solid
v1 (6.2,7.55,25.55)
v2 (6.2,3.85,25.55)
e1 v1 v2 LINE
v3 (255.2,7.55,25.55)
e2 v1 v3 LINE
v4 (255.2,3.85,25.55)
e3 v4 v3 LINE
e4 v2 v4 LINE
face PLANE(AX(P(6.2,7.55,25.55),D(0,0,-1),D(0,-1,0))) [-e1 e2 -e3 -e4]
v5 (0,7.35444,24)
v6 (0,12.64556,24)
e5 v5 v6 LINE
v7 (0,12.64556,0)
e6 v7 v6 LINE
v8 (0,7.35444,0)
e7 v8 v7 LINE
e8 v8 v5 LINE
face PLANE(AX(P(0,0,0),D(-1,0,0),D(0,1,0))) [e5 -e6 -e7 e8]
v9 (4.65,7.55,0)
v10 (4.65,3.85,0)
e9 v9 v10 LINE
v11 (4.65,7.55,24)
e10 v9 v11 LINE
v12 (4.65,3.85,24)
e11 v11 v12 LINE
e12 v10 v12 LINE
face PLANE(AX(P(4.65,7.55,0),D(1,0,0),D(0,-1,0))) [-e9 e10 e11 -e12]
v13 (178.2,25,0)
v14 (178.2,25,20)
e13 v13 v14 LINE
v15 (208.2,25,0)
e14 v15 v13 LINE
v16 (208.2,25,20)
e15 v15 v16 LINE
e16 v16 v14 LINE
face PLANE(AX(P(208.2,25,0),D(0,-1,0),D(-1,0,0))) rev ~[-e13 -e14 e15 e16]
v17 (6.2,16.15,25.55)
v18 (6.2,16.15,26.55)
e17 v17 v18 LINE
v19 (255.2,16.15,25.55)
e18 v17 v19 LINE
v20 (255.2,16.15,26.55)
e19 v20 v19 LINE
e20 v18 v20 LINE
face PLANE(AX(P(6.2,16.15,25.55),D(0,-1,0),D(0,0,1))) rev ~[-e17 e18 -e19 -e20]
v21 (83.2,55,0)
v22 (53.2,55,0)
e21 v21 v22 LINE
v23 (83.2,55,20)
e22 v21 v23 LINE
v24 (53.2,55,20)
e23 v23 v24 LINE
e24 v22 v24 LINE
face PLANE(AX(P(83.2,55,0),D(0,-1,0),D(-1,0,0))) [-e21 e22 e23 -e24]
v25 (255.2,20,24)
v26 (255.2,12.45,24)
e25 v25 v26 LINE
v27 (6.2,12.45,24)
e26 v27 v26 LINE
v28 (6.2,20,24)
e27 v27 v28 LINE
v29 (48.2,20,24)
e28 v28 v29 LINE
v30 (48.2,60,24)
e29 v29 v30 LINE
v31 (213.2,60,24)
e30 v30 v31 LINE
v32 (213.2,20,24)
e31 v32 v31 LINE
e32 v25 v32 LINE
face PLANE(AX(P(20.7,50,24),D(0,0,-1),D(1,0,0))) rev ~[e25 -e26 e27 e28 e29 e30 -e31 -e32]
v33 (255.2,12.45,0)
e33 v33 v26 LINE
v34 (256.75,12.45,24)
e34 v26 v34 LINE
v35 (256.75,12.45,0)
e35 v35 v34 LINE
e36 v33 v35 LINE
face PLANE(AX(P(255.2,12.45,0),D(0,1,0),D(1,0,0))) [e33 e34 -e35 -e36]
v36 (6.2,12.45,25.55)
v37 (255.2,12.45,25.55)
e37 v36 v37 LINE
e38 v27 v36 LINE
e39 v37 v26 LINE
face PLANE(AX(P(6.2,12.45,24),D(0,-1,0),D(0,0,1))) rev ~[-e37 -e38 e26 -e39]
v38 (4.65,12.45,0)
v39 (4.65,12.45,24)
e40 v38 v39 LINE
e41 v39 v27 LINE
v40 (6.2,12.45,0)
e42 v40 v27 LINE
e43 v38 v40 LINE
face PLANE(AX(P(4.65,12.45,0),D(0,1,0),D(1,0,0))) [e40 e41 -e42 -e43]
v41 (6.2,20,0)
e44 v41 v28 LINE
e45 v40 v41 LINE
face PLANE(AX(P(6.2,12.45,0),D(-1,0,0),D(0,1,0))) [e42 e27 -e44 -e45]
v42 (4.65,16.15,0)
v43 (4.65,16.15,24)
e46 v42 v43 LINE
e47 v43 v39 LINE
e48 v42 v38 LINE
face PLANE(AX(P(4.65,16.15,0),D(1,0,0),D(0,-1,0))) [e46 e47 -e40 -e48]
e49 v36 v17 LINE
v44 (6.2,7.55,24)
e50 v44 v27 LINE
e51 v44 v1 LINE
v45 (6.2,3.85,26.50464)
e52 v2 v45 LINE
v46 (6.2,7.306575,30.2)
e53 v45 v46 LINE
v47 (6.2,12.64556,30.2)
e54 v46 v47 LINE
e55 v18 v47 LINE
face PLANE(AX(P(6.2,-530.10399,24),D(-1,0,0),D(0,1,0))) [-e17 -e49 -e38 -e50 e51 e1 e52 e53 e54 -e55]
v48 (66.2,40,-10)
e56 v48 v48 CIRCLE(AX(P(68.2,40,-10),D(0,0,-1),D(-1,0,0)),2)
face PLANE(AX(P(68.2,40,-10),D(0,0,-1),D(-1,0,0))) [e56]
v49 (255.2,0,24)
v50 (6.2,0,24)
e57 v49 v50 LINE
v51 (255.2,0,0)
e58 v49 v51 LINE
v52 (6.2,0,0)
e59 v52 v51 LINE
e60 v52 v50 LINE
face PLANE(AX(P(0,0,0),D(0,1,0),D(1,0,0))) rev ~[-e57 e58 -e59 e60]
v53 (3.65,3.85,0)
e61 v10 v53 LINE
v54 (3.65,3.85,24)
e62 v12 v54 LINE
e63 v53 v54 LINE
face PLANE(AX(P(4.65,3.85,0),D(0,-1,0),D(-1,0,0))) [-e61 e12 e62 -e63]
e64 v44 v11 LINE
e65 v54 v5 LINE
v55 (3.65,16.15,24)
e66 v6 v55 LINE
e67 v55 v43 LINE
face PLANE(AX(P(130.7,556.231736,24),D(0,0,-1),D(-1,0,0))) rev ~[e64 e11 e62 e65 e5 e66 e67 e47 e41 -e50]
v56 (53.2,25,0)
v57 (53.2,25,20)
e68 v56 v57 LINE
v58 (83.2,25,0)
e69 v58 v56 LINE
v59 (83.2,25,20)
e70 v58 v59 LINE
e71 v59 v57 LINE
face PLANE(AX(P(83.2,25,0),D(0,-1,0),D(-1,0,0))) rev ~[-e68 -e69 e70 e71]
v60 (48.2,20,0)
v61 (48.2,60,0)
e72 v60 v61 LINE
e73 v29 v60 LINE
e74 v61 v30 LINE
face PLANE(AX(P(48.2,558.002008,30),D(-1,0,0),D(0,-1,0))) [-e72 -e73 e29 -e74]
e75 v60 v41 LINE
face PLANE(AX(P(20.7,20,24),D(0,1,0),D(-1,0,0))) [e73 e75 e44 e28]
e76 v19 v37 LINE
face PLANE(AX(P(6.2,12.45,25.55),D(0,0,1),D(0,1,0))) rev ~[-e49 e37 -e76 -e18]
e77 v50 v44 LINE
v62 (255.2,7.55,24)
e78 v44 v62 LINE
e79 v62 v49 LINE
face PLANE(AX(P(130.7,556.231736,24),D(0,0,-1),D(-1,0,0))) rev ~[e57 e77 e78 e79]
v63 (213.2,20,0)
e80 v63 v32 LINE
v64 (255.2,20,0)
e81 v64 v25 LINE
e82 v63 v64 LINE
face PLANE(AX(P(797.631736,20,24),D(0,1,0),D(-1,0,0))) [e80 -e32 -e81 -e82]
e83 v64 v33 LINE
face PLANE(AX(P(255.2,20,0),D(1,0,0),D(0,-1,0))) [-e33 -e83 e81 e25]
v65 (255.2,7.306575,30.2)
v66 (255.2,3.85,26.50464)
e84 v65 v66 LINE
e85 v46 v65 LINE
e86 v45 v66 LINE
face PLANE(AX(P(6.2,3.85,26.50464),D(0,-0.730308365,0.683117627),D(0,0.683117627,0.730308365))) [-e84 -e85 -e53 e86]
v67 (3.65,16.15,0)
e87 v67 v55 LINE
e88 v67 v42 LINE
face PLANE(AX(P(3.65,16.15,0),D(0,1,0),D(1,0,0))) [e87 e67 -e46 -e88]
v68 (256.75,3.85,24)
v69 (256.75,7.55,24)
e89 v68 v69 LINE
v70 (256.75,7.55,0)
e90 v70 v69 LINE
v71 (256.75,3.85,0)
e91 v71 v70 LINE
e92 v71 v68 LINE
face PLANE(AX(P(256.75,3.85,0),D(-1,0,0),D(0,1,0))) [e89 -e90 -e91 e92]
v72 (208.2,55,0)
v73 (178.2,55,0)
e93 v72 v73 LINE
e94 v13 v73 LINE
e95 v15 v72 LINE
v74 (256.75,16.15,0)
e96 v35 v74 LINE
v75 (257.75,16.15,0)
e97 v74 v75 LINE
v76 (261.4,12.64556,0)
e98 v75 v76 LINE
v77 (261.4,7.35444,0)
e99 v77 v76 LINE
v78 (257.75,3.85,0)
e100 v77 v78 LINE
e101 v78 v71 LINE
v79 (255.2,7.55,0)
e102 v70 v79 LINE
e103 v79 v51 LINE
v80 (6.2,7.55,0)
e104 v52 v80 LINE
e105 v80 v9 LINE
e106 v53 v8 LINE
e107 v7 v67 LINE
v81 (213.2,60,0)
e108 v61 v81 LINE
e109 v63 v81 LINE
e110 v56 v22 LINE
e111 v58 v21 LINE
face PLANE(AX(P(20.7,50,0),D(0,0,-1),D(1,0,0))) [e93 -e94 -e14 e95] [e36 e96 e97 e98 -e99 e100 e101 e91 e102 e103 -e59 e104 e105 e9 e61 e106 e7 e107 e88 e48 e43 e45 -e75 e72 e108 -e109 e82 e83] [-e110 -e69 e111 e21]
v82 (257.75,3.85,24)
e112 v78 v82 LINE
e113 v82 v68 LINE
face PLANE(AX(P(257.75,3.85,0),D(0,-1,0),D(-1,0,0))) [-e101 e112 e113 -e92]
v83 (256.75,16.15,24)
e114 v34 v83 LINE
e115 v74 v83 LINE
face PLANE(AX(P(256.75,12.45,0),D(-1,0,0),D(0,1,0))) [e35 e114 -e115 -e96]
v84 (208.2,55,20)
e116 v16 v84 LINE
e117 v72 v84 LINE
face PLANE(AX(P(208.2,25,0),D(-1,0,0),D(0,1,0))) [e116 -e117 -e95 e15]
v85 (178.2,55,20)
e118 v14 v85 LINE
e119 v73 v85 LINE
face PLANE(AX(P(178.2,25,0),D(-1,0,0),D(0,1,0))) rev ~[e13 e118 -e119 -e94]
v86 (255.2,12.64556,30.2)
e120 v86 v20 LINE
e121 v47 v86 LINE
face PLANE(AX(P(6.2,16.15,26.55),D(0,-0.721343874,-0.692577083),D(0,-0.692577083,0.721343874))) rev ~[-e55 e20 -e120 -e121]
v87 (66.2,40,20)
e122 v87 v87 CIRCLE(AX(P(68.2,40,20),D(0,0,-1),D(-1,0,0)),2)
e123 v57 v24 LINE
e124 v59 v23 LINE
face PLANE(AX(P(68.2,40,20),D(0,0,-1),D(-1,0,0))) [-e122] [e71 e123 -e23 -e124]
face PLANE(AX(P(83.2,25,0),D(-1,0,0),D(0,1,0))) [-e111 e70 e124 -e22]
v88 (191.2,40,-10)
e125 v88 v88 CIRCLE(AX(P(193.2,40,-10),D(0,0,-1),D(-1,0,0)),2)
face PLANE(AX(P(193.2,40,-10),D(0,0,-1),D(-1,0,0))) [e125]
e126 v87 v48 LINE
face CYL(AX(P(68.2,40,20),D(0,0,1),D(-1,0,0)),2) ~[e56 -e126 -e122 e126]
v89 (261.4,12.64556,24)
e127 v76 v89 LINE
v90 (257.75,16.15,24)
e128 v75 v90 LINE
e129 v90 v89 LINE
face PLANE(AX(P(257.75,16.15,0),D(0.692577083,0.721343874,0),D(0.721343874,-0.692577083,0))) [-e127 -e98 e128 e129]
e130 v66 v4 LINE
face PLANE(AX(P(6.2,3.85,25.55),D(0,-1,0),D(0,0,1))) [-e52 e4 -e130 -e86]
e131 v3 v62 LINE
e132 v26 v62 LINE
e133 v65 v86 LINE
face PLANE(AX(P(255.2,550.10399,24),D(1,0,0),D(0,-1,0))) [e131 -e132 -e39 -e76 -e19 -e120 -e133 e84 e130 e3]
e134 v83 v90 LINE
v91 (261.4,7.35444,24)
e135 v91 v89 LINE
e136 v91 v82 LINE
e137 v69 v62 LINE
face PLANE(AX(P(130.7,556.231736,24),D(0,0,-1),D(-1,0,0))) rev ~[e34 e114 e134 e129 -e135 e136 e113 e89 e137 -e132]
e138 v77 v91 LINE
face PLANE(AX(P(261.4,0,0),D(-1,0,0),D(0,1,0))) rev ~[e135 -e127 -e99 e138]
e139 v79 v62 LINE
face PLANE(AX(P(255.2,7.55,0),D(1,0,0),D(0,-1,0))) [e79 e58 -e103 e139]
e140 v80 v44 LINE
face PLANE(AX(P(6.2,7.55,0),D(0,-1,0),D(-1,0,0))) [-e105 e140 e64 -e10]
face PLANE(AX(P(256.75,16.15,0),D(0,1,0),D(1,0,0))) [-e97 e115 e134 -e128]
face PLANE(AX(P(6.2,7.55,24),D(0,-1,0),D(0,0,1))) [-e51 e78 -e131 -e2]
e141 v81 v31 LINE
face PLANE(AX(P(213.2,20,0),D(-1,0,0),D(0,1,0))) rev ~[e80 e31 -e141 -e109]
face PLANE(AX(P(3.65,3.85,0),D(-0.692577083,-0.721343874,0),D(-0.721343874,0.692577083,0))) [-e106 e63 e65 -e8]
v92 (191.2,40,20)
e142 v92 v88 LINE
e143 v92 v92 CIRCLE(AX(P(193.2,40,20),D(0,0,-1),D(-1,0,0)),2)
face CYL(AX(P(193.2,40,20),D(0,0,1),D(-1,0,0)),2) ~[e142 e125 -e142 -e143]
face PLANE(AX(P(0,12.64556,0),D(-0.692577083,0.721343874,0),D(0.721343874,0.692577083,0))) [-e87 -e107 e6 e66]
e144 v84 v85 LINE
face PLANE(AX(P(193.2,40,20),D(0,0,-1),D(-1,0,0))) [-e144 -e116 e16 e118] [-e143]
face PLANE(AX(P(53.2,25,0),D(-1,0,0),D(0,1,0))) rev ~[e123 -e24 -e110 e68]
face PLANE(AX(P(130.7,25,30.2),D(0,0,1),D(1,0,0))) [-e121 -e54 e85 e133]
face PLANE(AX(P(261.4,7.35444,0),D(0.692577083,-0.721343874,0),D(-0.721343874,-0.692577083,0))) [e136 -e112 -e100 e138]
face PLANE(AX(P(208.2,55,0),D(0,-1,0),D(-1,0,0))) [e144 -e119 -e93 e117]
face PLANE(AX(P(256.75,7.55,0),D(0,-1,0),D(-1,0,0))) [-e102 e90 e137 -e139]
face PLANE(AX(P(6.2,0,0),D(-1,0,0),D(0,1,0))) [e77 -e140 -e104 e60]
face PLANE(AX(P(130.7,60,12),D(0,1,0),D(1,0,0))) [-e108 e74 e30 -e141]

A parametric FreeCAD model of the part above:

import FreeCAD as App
import Part
import Sketcher


def add_polygon(sketch, points):
    """Adds a closed chain of lines whose ends are joined by coincident constraints."""
    first, n = sketch.GeometryCount, len(points)
    for a, b in zip(points, points[1:] + points[:1]):
        sketch.addGeometry(Part.LineSegment(App.Vector(*a, 0), App.Vector(*b, 0)), False)
    for i in range(n):
        sketch.addConstraint(Sketcher.Constraint("Coincident", first + i, 2, first + (i + 1) % n, 1))

doc = App.newDocument("Part")
body = doc.addObject("PartDesign::Body", "Body")

sketch1 = body.newObject("Sketcher::SketchObject", "Sketch")
sketch1.AttachmentSupport = (doc.getObject("XY_Plane"), [""])
sketch1.MapMode = "FlatFace"
add_polygon(sketch1, [(0, 50), (0, 0), (261, 0), (261, 50)])
sketch1.addConstraint([
    Sketcher.Constraint("Vertical", 0),
    Sketcher.Constraint("Horizontal", 1),
    Sketcher.Constraint("Vertical", 2),
    Sketcher.Constraint("Horizontal", 3),
    Sketcher.Constraint("Coincident", 0, 2, -1, 1),
    Sketcher.Constraint("DistanceY", 0, 2, 0, 1, 50.0),
    Sketcher.Constraint("DistanceX", 1, 1, 1, 2, 261.4),
])
pad1 = body.newObject("PartDesign::Pad", "Pad")
pad1.Profile = sketch1
pad1.Length = 30.2

sketch2 = body.newObject("Sketcher::SketchObject", "Sketch001")
sketch2.AttachmentSupport = (doc.getObject("XY_Plane"), [""])
sketch2.MapMode = "FlatFace"
sketch2.AttachmentOffset = App.Placement(App.Vector(0, 0, 30.2), App.Rotation())
add_polygon(sketch2, [(-536, 20), (798, 20), (798, 1092), (-536, 1092)])
sketch2.addConstraint([
    Sketcher.Constraint("Horizontal", 0),
    Sketcher.Constraint("Vertical", 1),
    Sketcher.Constraint("Horizontal", 2),
    Sketcher.Constraint("Vertical", 3),
    Sketcher.Constraint("DistanceY", -1, 1, 0, 2, 20.0),
    Sketcher.Constraint("DistanceX", 0, 1, 0, 2, 1333.863472),
    Sketcher.Constraint("DistanceY", 1, 1, 1, 2, 1072.463472),
    Sketcher.Constraint("DistanceX", -1, 1, 0, 2, 797.631736),
])
pocket1 = body.newObject("PartDesign::Pocket", "Pocket")
pocket1.Profile = sketch2
pocket1.Type = "TwoLengths"
pocket1.Length = 268.846971
pocket1.Length2 = 6.2
pocket1.Reversed = True

sketch3 = body.newObject("Sketcher::SketchObject", "Sketch002")
sketch3.AttachmentSupport = (doc.getObject("XY_Plane"), [""])
sketch3.MapMode = "FlatFace"
sketch3.AttachmentOffset = App.Placement(App.Vector(0, 0, 30.2), App.Rotation())
add_polygon(sketch3, [(6, -530), (6, 550), (-1054, 550), (-1054, -530)])
sketch3.addConstraint([
    Sketcher.Constraint("Vertical", 0),
    Sketcher.Constraint("Horizontal", 1),
    Sketcher.Constraint("Vertical", 2),
    Sketcher.Constraint("Horizontal", 3),
    Sketcher.Constraint("DistanceX", -1, 1, 0, 2, 6.2),
    Sketcher.Constraint("DistanceX", 1, 2, 1, 1, 1060.207979),
    Sketcher.Constraint("DistanceY", 0, 1, 0, 2, 1080.207979),
    Sketcher.Constraint("DistanceY", -1, 1, 0, 2, 550.10399),
])
pocket2 = body.newObject("PartDesign::Pocket", "Pocket001")
pocket2.Profile = sketch3
pocket2.Type = "TwoLengths"
pocket2.Length = 268.846971
pocket2.Length2 = 6.2
pocket2.Reversed = True

sketch4 = body.newObject("Sketcher::SketchObject", "Sketch003")
sketch4.AttachmentSupport = (doc.getObject("XY_Plane"), [""])
sketch4.MapMode = "FlatFace"
sketch4.AttachmentOffset = App.Placement(App.Vector(0, 0, 30.2), App.Rotation())
add_polygon(sketch4, [(255, 550), (255, -530), (1315, -530), (1315, 550)])
sketch4.addConstraint([
    Sketcher.Constraint("Vertical", 0),
    Sketcher.Constraint("Horizontal", 1),
    Sketcher.Constraint("Vertical", 2),
    Sketcher.Constraint("Horizontal", 3),
    Sketcher.Constraint("DistanceX", -1, 1, 0, 2, 255.2),
    Sketcher.Constraint("DistanceX", 1, 1, 1, 2, 1060.207979),
    Sketcher.Constraint("DistanceY", 0, 2, 0, 1, 1080.207979),
    Sketcher.Constraint("DistanceY", 0, 2, -1, 1, 530.10399),
])
pocket3 = body.newObject("PartDesign::Pocket", "Pocket002")
pocket3.Profile = sketch4
pocket3.Type = "TwoLengths"
pocket3.Length = 268.846971
pocket3.Length2 = 6.2
pocket3.Reversed = True

sketch5 = body.newObject("Sketcher::SketchObject", "Sketch004")
sketch5.AttachmentSupport = (doc.getObject("YZ_Plane"), [""])
sketch5.MapMode = "FlatFace"
sketch5.AttachmentOffset = App.Placement(App.Vector(0, 0, 255.2), App.Rotation())
add_polygon(sketch5, [(-120.923397, 24), (7.55, 24), (7.55, 25.55), (3.85, 25.55), (3.85, 26.50464), (7.306575, 30.2), (89.911479, 118.511368), (-9.016667, 339.199142), (-219.851543, 244.687774)])
sketch5.addConstraint([
    Sketcher.Constraint("Horizontal", 0),
    Sketcher.Constraint("Vertical", 1),
    Sketcher.Constraint("Horizontal", 2),
    Sketcher.Constraint("Vertical", 3),
    Sketcher.Constraint("DistanceX", 2, 2, 2, 1, 3.7),
    Sketcher.Constraint("DistanceY", -1, 1, 0, 2, 24.0),
    Sketcher.Constraint("DistanceY", 1, 1, 1, 2, 1.55),
    Sketcher.Constraint("DistanceY", -1, 1, 4, 2, 30.2),
    Sketcher.Constraint("Distance", 4, 5.06),
    Sketcher.Constraint("DistanceX", -1, 1, 0, 2, 7.55),
    Sketcher.Constraint("DistanceY", 3, 1, 3, 2, 0.95464),
    Sketcher.Constraint("DistanceX", 0, 1, 0, 2, 128.473397),
    Sketcher.Constraint("DistanceX", -1, 1, 5, 2, 89.911479),
    Sketcher.Constraint("DistanceY", -1, 1, 5, 2, 118.511368),
    Sketcher.Constraint("DistanceY", 7, 2, 6, 2, 94.511368),
    Sketcher.Constraint("DistanceX", 7, 2, 4, 2, 227.158119),
    Sketcher.Constraint("Distance", 6, 241.846794),
    Sketcher.Constraint("Distance", 7, 231.049224),
])
pocket4 = body.newObject("PartDesign::Pocket", "Pocket003")
pocket4.Profile = sketch5
pocket4.Type = "ThroughAll"
pocket4.Midplane = True

sketch6 = body.newObject("Sketcher::SketchObject", "Sketch005")
sketch6.AttachmentSupport = (doc.getObject("YZ_Plane"), [""])
sketch6.MapMode = "FlatFace"
sketch6.AttachmentOffset = App.Placement(App.Vector(0, 0, 255.2), App.Rotation())
add_polygon(sketch6, [(12.4, 24), (126.1, 24), (211.9, 218), (25, 300.7), (-60.8, 106.7), (12.6, 30.2), (16.1, 26.6), (16.1, 25.6), (12.4, 25.6)])
sketch6.addConstraint([
    Sketcher.Constraint("Horizontal", 0),
    Sketcher.Constraint("Vertical", 6),
    Sketcher.Constraint("Horizontal", 7),
    Sketcher.Constraint("Vertical", 8),
    Sketcher.Constraint("Perpendicular", 1, 2),
    Sketcher.Constraint("Perpendicular", 2, 3),
    Sketcher.Constraint("Parallel", 4, 5),
    Sketcher.Constraint("Equal", 1, 3),
    Sketcher.Constraint("DistanceY", 6, 2, 6, 1, 1.0),
    Sketcher.Constraint("DistanceX", 7, 2, 7, 1, 3.7),
    Sketcher.Constraint("DistanceY", -1, 1, 0, 2, 24.0),
    Sketcher.Constraint("DistanceY", 8, 2, 8, 1, 1.55),
    Sketcher.Constraint("DistanceY", -1, 1, 4, 2, 30.2),
    Sketcher.Constraint("Distance", 5, 5.06),
    Sketcher.Constraint("DistanceX", -1, 1, 5, 2, 16.15),
    Sketcher.Constraint("DistanceX", 0, 1, 0, 2, 113.620686),
    Sketcher.Constraint("DistanceX", -1, 1, 1, 2, 211.92809),
    Sketcher.Constraint("DistanceY", -1, 1, 3, 2, 106.71344),
])
pocket5 = body.newObject("PartDesign::Pocket", "Pocket004")
pocket5.Profile = sketch6
pocket5.Type = "ThroughAll"
pocket5.Midplane = True

sketch7 = body.newObject("Sketcher::SketchObject", "Sketch006")
sketch7.AttachmentSupport = (doc.getObject("XY_Plane"), [""])
sketch7.MapMode = "FlatFace"
add_polygon(sketch7, [(21, 20), (-536, 20), (-1301, 772), (-744, 1338), (21, 586)])
sketch7.addConstraint([
    Sketcher.Constraint("Horizontal", 0),
    Sketcher.Constraint("Vertical", 4),
    Sketcher.Constraint("Perpendicular", 1, 2),
    Sketcher.Constraint("Perpendicular", 2, 3),
    Sketcher.Constraint("Equal", 1, 3),
    Sketcher.Constraint("DistanceY", -1, 1, 0, 2, 20.0),
    Sketcher.Constraint("DistanceX", -1, 1, 3, 2, 20.7),
    Sketcher.Constraint("DistanceX", 0, 2, 0, 1, 556.931736),
    Sketcher.Constraint("DistanceY", 4, 2, 4, 1, 566.231736),
    Sketcher.Constraint("DistanceX", 2, 2, -1, 1, 743.899229),
])
pocket6 = body.newObject("PartDesign::Pocket", "Pocket005")
pocket6.Profile = sketch7
pocket6.Type = "ThroughAll"
pocket6.Midplane = True

sketch8 = body.newObject("Sketcher::SketchObject", "Sketch007")
sketch8.AttachmentSupport = (doc.getObject("XY_Plane"), [""])
sketch8.MapMode = "FlatFace"
add_polygon(sketch8, [(798, 20), (241, 20), (241, 586), (1005, 1338), (1562, 772)])
sketch8.addConstraint([
    Sketcher.Constraint("Horizontal", 0),
    Sketcher.Constraint("Vertical", 1),
    Sketcher.Constraint("Perpendicular", 2, 3),
    Sketcher.Constraint("Perpendicular", 3, 4),
    Sketcher.Constraint("Equal", 2, 4),
    Sketcher.Constraint("DistanceY", -1, 1, 0, 2, 20.0),
    Sketcher.Constraint("DistanceX", -1, 1, 0, 2, 240.7),
    Sketcher.Constraint("DistanceX", 0, 2, 0, 1, 556.931736),
    Sketcher.Constraint("DistanceY", 1, 1, 1, 2, 566.231736),
    Sketcher.Constraint("DistanceX", -1, 1, 2, 2, 1005.299229),
])
pocket7 = body.newObject("PartDesign::Pocket", "Pocket006")
pocket7.Profile = sketch8
pocket7.Type = "ThroughAll"
pocket7.Midplane = True

sketch9 = body.newObject("Sketcher::SketchObject", "Sketch008")
sketch9.AttachmentSupport = (doc.getObject("XY_Plane"), [""])
sketch9.MapMode = "FlatFace"
sketch9.AttachmentOffset = App.Placement(App.Vector(0, 0, 24), App.Rotation())
add_polygon(sketch9, [(6.2, 0), (6.2, 7.5), (4.7, 7.5), (4.7, 3.9), (3.6, 3.9), (0, 7.4), (0, 0)])
sketch9.addConstraint([
    Sketcher.Constraint("Vertical", 0),
    Sketcher.Constraint("Horizontal", 1),
    Sketcher.Constraint("Vertical", 2),
    Sketcher.Constraint("Horizontal", 3),
    Sketcher.Constraint("Vertical", 5),
    Sketcher.Constraint("Horizontal", 6),
    Sketcher.Constraint("Coincident", 5, 2, -1, 1),
    Sketcher.Constraint("DistanceX", 3, 2, 3, 1, 1.0),
    Sketcher.Constraint("DistanceX", 6, 1, 6, 2, 6.2),
    Sketcher.Constraint("DistanceY", 2, 2, 2, 1, 3.7),
    Sketcher.Constraint("DistanceX", 1, 2, 1, 1, 1.55),
    Sketcher.Constraint("DistanceY", 0, 1, 0, 2, 7.55),
    Sketcher.Constraint("Distance", 4, 5.06),
])
pocket8 = body.newObject("PartDesign::Pocket", "Pocket007")
pocket8.Profile = sketch9
pocket8.Type = "ThroughAll"
pocket8.Midplane = True

sketch10 = body.newObject("Sketcher::SketchObject", "Sketch009")
sketch10.AttachmentSupport = (doc.getObject("XY_Plane"), [""])
sketch10.MapMode = "FlatFace"
sketch10.AttachmentOffset = App.Placement(App.Vector(0, 0, 24), App.Rotation())
add_polygon(sketch10, [(-388.2, -360), (0, 12.6), (3.6, 16.1), (4.7, 16.1), (4.7, 12.4), (6.2, 12.4), (6.2, 558.1), (-982.7, 982.8), (-1377, 64.7)])
sketch10.addConstraint([
    Sketcher.Constraint("Horizontal", 2),
    Sketcher.Constraint("Vertical", 3),
    Sketcher.Constraint("Horizontal", 4),
    Sketcher.Constraint("Vertical", 5),
    Sketcher.Constraint("PointOnObject", 0, 2, -2),
    Sketcher.Constraint("Parallel", 0, 1),
    Sketcher.Constraint("Perpendicular", 6, 7),
    Sketcher.Constraint("Perpendicular", 7, 8),
    Sketcher.Constraint("Equal", 6, 8),
    Sketcher.Constraint("DistanceX", 2, 1, 2, 2, 1.0),
    Sketcher.Constraint("DistanceY", 3, 2, 3, 1, 3.7),
    Sketcher.Constraint("DistanceX", 4, 1, 4, 2, 1.55),
    Sketcher.Constraint("DistanceX", -1, 1, 4, 2, 6.2),
    Sketcher.Constraint("Distance", 1, 5.06),
    Sketcher.Constraint("DistanceY", -1, 1, 1, 2, 16.15),
    Sketcher.Constraint("Distance", 7, 999.259489),
    Sketcher.Constraint("DistanceY", 5, 1, 5, 2, 545.661027),
    Sketcher.Constraint("DistanceX", 7, 2, -1, 1, 1377.027379),
])
pocket9 = body.newObject("PartDesign::Pocket", "Pocket008")
pocket9.Profile = sketch10
pocket9.Type = "ThroughAll"
pocket9.Midplane = True

sketch11 = body.newObject("Sketcher::SketchObject", "Sketch010")
sketch11.AttachmentSupport = (doc.getObject("XY_Plane"), [""])
sketch11.MapMode = "FlatFace"
sketch11.AttachmentOffset = App.Placement(App.Vector(0, 0, 24), App.Rotation())
add_polygon(sketch11, [(255.2, 20), (255.2, 12.4), (256.8, 12.4), (256.8, 16.1), (257.8, 16.1), (261.4, 12.6), (261.4, 20)])
sketch11.addConstraint([
    Sketcher.Constraint("Vertical", 0),
    Sketcher.Constraint("Horizontal", 1),
    Sketcher.Constraint("Vertical", 2),
    Sketcher.Constraint("Horizontal", 3),
    Sketcher.Constraint("Vertical", 5),
    Sketcher.Constraint("Horizontal", 6),
    Sketcher.Constraint("DistanceX", 3, 1, 3, 2, 1.0),
    Sketcher.Constraint("DistanceX", 6, 2, 6, 1, 6.2),
    Sketcher.Constraint("DistanceY", 2, 1, 2, 2, 3.7),
    Sketcher.Constraint("DistanceY", -1, 1, 5, 2, 20.0),
    Sketcher.Constraint("DistanceX", 1, 1, 1, 2, 1.55),
    Sketcher.Constraint("DistanceY", 0, 2, 0, 1, 7.55),
    Sketcher.Constraint("DistanceX", -1, 1, 0, 2, 255.2),
    Sketcher.Constraint("Distance", 4, 5.06),
])
pocket10 = body.newObject("PartDesign::Pocket", "Pocket009")
pocket10.Profile = sketch11
pocket10.Type = "ThroughAll"
pocket10.Midplane = True

sketch12 = body.newObject("Sketcher::SketchObject", "Sketch011")
sketch12.AttachmentSupport = (doc.getObject("XY_Plane"), [""])
sketch12.MapMode = "FlatFace"
sketch12.AttachmentOffset = App.Placement(App.Vector(0, 0, 24), App.Rotation())
add_polygon(sketch12, [(650.7, 381.1), (261.4, 7.4), (257.8, 3.9), (256.8, 3.9), (256.8, 7.5), (255.2, 7.5), (255.2, -539.7), (1247, -965.7), (1642.5, -44.8)])
sketch12.addConstraint([
    Sketcher.Constraint("Horizontal", 2),
    Sketcher.Constraint("Vertical", 3),
    Sketcher.Constraint("Horizontal", 4),
    Sketcher.Constraint("Vertical", 5),
    Sketcher.Constraint("Parallel", 0, 1),
    Sketcher.Constraint("Perpendicular", 6, 7),
    Sketcher.Constraint("Perpendicular", 7, 8),
    Sketcher.Constraint("Equal", 6, 8),
    Sketcher.Constraint("DistanceX", 2, 2, 2, 1, 1.0),
    Sketcher.Constraint("DistanceY", 3, 1, 3, 2, 3.7),
    Sketcher.Constraint("DistanceX", 4, 2, 4, 1, 1.55),
    Sketcher.Constraint("DistanceX", -1, 1, 0, 2, 261.4),
    Sketcher.Constraint("DistanceX", -1, 1, 4, 2, 255.2),
    Sketcher.Constraint("Distance", 1, 5.06),
    Sketcher.Constraint("DistanceY", -1, 1, 1, 2, 3.85),
    Sketcher.Constraint("Distance", 7, 1002.204401),
    Sketcher.Constraint("DistanceY", 5, 2, 5, 1, 547.261634),
    Sketcher.Constraint("DistanceX", -1, 1, 6, 2, 1247.009189),
])
pocket11 = body.newObject("PartDesign::Pocket", "Pocket010")
pocket11.Profile = sketch12
pocket11.Type = "ThroughAll"
pocket11.Midplane = True

sketch13 = body.newObject("Sketcher::SketchObject", "Sketch012")
sketch13.AttachmentSupport = (doc.getObject("XZ_Plane"), [""])
sketch13.MapMode = "FlatFace"
sketch13.AttachmentOffset = App.Placement(App.Vector(0, 0, -50), App.Rotation())
add_polygon(sketch13, [(21, 0), (21, 24), (241, 24), (241, 0)])
sketch13.addConstraint([
    Sketcher.Constraint("Vertical", 0),
    Sketcher.Constraint("Horizontal", 1),
    Sketcher.Constraint("Vertical", 2),
    Sketcher.Constraint("Horizontal", 3),
    Sketcher.Constraint("PointOnObject", 2, 2, -1),
    Sketcher.Constraint("DistanceX", 1, 1, 1, 2, 220.0),
    Sketcher.Constraint("DistanceY", 0, 1, 0, 2, 24.0),
    Sketcher.Constraint("DistanceX", -1, 1, 0, 2, 20.7),
])
pad2 = body.newObject("PartDesign::Pad", "Pad001")
pad2.Profile = sketch13
pad2.Length = 10
pad2.Reversed = True

sketch14 = body.newObject("Sketcher::SketchObject", "Sketch013")
sketch14.AttachmentSupport = (doc.getObject("XY_Plane"), [""])
sketch14.MapMode = "FlatFace"
add_polygon(sketch14, [(241, 60), (241, 20), (226, 20), (226, 60)])
sketch14.addConstraint([
    Sketcher.Constraint("Vertical", 0),
    Sketcher.Constraint("Horizontal", 1),
    Sketcher.Constraint("Vertical", 2),
    Sketcher.Constraint("Horizontal", 3),
    Sketcher.Constraint("DistanceX", 1, 2, 1, 1, 15.0),
    Sketcher.Constraint("DistanceY", 0, 2, 0, 1, 40.0),
    Sketcher.Constraint("DistanceY", -1, 1, 0, 2, 20.0),
    Sketcher.Constraint("DistanceX", -1, 1, 0, 2, 240.7),
])
pocket12 = body.newObject("PartDesign::Pocket", "Pocket011")
pocket12.Profile = sketch14
pocket12.Length = 24
pocket12.Reversed = True

sketch15 = body.newObject("Sketcher::SketchObject", "Sketch014")
sketch15.AttachmentSupport = (doc.getObject("XY_Plane"), [""])
sketch15.MapMode = "FlatFace"
add_polygon(sketch15, [(226, 60), (226, 20), (213, 20), (213, 60)])
sketch15.addConstraint([
    Sketcher.Constraint("Vertical", 0),
    Sketcher.Constraint("Horizontal", 1),
    Sketcher.Constraint("Vertical", 2),
    Sketcher.Constraint("Horizontal", 3),
    Sketcher.Constraint("DistanceY", 0, 2, 0, 1, 40.0),
    Sketcher.Constraint("DistanceX", 1, 2, 1, 1, 12.5),
    Sketcher.Constraint("DistanceY", -1, 1, 0, 2, 20.0),
    Sketcher.Constraint("DistanceX", -1, 1, 0, 2, 225.7),
])
pocket13 = body.newObject("PartDesign::Pocket", "Pocket012")
pocket13.Profile = sketch15
pocket13.Length = 30
pocket13.Reversed = True

sketch16 = body.newObject("Sketcher::SketchObject", "Sketch015")
sketch16.AttachmentSupport = (doc.getObject("XY_Plane"), [""])
sketch16.MapMode = "FlatFace"
add_polygon(sketch16, [(48, 20), (-477, 20), (-1190, 716), (-664, 1254), (48, 558)])
sketch16.addConstraint([
    Sketcher.Constraint("Horizontal", 0),
    Sketcher.Constraint("Vertical", 4),
    Sketcher.Constraint("Perpendicular", 1, 2),
    Sketcher.Constraint("Perpendicular", 2, 3),
    Sketcher.Constraint("Equal", 1, 3),
    Sketcher.Constraint("DistanceY", -1, 1, 0, 2, 20.0),
    Sketcher.Constraint("DistanceX", -1, 1, 3, 2, 48.2),
    Sketcher.Constraint("DistanceX", 0, 2, 0, 1, 525.502008),
    Sketcher.Constraint("DistanceY", 4, 2, 4, 1, 538.002008),
    Sketcher.Constraint("DistanceX", 2, 2, -1, 1, 664.309819),
])
pocket14 = body.newObject("PartDesign::Pocket", "Pocket013")
pocket14.Profile = sketch16
pocket14.Type = "ThroughAll"
pocket14.Midplane = True

sketch17 = body.newObject("Sketcher::SketchObject", "Sketch016")
sketch17.AttachmentSupport = (doc.getObject("XY_Plane"), [""])
sketch17.MapMode = "FlatFace"
add_polygon(sketch17, [(208, 55), (208, 25), (178, 25), (178, 55)])
sketch17.addConstraint([
    Sketcher.Constraint("Vertical", 0),
    Sketcher.Constraint("Horizontal", 1),
    Sketcher.Constraint("Vertical", 2),
    Sketcher.Constraint("Horizontal", 3),
    Sketcher.Constraint("Equal", 3, 0),
    Sketcher.Constraint("DistanceX", 1, 2, 1, 1, 30.0),
    Sketcher.Constraint("DistanceY", -1, 1, 0, 2, 25.0),
    Sketcher.Constraint("DistanceX", -1, 1, 0, 2, 208.2),
])
pocket15 = body.newObject("PartDesign::Pocket", "Pocket014")
pocket15.Profile = sketch17
pocket15.Length = 20
pocket15.Reversed = True

sketch18 = body.newObject("Sketcher::SketchObject", "Sketch017")
sketch18.AttachmentSupport = (doc.getObject("XY_Plane"), [""])
sketch18.MapMode = "FlatFace"
sketch18.AttachmentOffset = App.Placement(App.Vector(0, 0, 20), App.Rotation())
sketch18.addGeometry(Part.Circle(App.Vector(193.2, 40, 0), App.Vector(0, 0, 1), 2), False)
sketch18.addConstraint([
    Sketcher.Constraint("Diameter", 0, 4.0),
    Sketcher.Constraint("DistanceY", -1, 1, 0, 3, 40.0),
    Sketcher.Constraint("DistanceX", -1, 1, 0, 3, 193.2),
])
pad3 = body.newObject("PartDesign::Pad", "Pad002")
pad3.Profile = sketch18
pad3.Length = 30
pad3.Reversed = True

sketch19 = body.newObject("Sketcher::SketchObject", "Sketch018")
sketch19.AttachmentSupport = (doc.getObject("XY_Plane"), [""])
sketch19.MapMode = "FlatFace"
add_polygon(sketch19, [(83, 55), (83, 25), (53, 25), (53, 55)])
sketch19.addConstraint([
    Sketcher.Constraint("Vertical", 0),
    Sketcher.Constraint("Horizontal", 1),
    Sketcher.Constraint("Vertical", 2),
    Sketcher.Constraint("Horizontal", 3),
    Sketcher.Constraint("Equal", 3, 0),
    Sketcher.Constraint("DistanceX", 1, 2, 1, 1, 30.0),
    Sketcher.Constraint("DistanceY", -1, 1, 0, 2, 25.0),
    Sketcher.Constraint("DistanceX", -1, 1, 0, 2, 83.2),
])
pocket16 = body.newObject("PartDesign::Pocket", "Pocket015")
pocket16.Profile = sketch19
pocket16.Length = 20
pocket16.Reversed = True

sketch20 = body.newObject("Sketcher::SketchObject", "Sketch019")
sketch20.AttachmentSupport = (doc.getObject("XY_Plane"), [""])
sketch20.MapMode = "FlatFace"
sketch20.AttachmentOffset = App.Placement(App.Vector(0, 0, 20), App.Rotation())
sketch20.addGeometry(Part.Circle(App.Vector(68.2, 40, 0), App.Vector(0, 0, 1), 2), False)
sketch20.addConstraint([
    Sketcher.Constraint("Diameter", 0, 4.0),
    Sketcher.Constraint("DistanceY", -1, 1, 0, 3, 40.0),
    Sketcher.Constraint("DistanceX", -1, 1, 0, 3, 68.2),
])
pad4 = body.newObject("PartDesign::Pad", "Pad003")
pad4.Profile = sketch20
pad4.Length = 30
pad4.Reversed = True

doc.recompute()
